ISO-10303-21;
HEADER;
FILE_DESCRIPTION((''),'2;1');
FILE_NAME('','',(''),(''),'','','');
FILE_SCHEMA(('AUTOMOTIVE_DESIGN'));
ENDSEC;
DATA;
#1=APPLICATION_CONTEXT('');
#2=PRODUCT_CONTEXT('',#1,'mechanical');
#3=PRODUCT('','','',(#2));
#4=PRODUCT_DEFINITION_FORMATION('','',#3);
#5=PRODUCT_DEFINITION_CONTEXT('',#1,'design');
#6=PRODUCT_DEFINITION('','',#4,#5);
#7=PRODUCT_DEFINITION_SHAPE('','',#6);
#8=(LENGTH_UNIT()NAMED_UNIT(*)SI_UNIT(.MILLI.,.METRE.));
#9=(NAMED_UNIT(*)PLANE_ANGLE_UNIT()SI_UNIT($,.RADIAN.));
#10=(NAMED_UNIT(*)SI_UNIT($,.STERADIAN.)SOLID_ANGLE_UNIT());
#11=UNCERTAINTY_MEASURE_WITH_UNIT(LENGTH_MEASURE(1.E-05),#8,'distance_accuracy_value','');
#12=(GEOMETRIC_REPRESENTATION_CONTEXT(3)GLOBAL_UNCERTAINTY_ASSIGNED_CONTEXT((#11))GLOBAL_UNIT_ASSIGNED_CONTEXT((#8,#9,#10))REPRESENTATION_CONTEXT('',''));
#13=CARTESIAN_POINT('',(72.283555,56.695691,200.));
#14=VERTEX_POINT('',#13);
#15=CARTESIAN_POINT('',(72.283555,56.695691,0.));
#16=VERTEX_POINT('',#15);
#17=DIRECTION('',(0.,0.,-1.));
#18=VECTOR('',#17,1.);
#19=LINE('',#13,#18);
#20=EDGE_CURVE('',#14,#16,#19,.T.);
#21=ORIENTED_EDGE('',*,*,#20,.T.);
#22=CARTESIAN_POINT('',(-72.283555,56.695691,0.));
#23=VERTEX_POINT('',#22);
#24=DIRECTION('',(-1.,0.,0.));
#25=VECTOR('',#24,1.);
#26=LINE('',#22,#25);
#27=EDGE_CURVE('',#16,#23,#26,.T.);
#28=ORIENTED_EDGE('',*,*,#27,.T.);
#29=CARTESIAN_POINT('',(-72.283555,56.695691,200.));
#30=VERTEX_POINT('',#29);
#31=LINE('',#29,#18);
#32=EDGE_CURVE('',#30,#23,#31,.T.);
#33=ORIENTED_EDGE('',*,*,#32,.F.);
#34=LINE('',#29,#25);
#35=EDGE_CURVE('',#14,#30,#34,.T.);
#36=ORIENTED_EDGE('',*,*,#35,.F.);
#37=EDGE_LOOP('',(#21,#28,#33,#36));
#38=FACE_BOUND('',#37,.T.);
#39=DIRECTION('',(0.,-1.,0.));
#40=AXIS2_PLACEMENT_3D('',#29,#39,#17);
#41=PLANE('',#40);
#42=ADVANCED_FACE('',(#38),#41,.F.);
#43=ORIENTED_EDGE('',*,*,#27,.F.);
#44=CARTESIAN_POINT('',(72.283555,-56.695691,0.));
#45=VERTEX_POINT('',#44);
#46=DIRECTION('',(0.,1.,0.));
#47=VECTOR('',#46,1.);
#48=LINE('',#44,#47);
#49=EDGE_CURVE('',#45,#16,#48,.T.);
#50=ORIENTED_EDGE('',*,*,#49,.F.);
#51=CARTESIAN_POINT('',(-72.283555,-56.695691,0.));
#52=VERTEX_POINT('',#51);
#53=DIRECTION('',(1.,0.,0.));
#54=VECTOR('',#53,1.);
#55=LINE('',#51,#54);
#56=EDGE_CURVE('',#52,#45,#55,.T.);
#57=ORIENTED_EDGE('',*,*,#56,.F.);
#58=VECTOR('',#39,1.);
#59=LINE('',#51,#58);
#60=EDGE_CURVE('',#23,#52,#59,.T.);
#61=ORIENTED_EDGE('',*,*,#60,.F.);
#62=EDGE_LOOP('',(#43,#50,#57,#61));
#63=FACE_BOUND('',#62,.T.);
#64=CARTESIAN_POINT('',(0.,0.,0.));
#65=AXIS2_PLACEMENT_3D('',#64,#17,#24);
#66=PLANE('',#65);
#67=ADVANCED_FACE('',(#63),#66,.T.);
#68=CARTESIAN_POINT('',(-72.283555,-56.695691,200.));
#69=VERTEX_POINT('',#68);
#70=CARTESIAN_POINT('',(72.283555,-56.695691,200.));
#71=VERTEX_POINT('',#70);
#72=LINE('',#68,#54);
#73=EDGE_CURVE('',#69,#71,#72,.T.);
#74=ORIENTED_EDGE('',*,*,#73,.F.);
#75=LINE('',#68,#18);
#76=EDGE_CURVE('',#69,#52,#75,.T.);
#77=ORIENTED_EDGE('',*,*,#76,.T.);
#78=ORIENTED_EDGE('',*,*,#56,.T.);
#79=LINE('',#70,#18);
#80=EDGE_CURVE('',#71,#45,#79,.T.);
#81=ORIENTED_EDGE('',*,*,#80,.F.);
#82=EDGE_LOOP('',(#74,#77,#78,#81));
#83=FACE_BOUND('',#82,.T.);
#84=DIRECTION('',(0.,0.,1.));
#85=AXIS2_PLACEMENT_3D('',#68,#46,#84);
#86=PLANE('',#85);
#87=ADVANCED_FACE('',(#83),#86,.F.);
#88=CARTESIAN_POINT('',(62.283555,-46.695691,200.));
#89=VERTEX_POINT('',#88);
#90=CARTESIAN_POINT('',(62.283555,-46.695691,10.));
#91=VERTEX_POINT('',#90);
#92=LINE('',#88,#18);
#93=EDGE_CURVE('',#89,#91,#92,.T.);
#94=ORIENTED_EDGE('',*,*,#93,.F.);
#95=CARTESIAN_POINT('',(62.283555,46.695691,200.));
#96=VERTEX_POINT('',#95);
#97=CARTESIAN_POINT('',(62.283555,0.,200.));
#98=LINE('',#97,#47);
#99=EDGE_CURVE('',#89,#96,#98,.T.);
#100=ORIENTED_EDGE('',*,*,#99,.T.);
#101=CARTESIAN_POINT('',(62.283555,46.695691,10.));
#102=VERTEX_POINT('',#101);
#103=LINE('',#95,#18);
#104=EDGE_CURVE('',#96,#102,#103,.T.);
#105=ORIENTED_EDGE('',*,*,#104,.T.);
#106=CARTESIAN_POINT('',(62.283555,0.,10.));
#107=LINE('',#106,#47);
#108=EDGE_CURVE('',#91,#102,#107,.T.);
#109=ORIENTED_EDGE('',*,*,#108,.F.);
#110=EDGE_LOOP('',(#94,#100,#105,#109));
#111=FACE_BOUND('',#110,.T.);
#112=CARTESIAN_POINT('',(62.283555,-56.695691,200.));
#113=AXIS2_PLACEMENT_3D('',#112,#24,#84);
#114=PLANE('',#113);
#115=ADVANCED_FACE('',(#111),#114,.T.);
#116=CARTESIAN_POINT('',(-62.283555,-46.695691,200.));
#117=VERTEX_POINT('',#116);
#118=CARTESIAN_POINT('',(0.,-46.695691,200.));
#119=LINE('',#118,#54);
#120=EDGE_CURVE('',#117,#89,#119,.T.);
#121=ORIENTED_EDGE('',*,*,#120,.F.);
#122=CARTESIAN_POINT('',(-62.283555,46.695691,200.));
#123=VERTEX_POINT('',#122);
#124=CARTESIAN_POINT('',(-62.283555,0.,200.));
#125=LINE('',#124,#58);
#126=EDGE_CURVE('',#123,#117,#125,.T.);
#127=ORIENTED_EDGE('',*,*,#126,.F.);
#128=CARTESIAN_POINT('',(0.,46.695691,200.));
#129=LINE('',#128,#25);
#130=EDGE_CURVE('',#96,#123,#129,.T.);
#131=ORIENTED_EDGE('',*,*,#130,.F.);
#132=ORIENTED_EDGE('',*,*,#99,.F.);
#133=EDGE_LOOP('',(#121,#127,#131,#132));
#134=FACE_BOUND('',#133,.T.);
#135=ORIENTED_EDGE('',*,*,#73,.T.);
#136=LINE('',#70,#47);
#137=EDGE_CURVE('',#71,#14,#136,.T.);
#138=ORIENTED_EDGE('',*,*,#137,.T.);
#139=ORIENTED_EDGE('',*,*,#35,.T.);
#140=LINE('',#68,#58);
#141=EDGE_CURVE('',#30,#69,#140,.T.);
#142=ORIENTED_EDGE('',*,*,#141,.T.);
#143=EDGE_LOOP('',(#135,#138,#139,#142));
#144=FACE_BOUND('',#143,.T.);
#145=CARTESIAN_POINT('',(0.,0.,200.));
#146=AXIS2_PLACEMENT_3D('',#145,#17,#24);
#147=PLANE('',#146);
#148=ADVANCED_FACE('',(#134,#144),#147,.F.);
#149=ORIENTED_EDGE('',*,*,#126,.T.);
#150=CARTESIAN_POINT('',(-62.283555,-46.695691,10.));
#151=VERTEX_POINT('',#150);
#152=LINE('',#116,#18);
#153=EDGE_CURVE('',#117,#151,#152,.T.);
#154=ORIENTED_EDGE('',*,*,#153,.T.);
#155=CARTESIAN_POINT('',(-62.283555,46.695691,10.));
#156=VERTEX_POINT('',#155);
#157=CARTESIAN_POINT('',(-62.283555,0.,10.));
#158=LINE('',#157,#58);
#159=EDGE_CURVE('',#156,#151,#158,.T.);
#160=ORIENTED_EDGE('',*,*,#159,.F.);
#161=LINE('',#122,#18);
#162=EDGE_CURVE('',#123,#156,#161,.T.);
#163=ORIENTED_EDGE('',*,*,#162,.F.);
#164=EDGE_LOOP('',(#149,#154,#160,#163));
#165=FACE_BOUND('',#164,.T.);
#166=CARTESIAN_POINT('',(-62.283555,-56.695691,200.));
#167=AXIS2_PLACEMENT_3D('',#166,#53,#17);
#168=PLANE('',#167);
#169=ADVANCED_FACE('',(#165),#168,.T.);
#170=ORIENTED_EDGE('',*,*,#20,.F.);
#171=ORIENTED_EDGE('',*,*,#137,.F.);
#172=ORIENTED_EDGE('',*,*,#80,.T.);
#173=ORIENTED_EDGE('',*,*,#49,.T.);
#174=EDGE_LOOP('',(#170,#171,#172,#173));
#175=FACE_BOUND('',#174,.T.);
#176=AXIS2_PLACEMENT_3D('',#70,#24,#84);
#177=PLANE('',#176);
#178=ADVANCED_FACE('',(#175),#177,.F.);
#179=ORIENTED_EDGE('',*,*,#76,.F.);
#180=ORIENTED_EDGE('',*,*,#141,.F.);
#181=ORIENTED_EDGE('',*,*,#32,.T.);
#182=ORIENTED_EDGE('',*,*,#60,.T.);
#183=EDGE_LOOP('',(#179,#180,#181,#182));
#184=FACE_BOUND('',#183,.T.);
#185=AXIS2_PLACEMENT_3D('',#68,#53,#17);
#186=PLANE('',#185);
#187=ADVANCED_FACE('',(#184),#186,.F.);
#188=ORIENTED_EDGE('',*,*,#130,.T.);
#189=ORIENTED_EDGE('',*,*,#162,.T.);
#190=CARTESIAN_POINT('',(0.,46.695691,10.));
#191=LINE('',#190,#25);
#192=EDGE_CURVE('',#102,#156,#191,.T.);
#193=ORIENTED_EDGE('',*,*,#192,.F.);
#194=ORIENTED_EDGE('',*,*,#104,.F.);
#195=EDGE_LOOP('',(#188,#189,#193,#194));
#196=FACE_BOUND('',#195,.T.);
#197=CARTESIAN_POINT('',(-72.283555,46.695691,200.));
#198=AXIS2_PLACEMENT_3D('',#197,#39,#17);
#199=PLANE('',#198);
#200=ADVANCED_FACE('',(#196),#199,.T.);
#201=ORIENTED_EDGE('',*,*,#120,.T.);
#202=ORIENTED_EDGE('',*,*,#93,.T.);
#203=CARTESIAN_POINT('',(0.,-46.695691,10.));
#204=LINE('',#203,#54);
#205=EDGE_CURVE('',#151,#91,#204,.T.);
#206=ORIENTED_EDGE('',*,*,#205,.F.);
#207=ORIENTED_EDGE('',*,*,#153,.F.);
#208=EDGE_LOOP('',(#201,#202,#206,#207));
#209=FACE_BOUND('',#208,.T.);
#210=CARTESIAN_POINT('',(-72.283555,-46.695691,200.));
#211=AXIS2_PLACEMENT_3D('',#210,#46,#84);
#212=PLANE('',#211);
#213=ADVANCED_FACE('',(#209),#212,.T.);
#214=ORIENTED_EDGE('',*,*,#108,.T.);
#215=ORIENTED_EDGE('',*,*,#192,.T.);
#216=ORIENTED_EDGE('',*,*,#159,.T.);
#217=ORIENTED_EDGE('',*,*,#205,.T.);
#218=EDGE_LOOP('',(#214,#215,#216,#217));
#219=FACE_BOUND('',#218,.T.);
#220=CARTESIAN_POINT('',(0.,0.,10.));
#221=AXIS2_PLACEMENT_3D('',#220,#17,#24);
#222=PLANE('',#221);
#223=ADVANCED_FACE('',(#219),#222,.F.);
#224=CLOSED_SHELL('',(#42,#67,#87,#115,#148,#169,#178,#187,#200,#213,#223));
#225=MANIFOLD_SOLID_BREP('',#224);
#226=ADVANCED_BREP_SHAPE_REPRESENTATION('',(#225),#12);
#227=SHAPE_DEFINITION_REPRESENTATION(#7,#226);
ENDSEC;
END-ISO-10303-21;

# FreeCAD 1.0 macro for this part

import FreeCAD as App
import Part
import Sketcher


def faces_at(feature, points):
    """Names of the faces that lie closest to the given points."""
    faces = feature.Shape.Faces
    near = lambda p: min(range(len(faces)), key=lambda i: faces[i].distToShape(Part.Vertex(*p))[0])
    return sorted({f"Face{near(p) + 1}" for p in points})

doc = App.newDocument("Part")
body = doc.addObject("PartDesign::Body", "Body")

sketch1 = doc.addObject("Sketcher::SketchObject", "Sketch")
body.addObject(sketch1)
sketch1.AttachmentSupport = (doc.XY_Plane, [""])
sketch1.MapMode = "FlatFace"
sketch1.addGeometry([
    Part.LineSegment(App.Vector(-72, 57, 0), App.Vector(-72, -57, 0)),
    Part.LineSegment(App.Vector(-72, -57, 0), App.Vector(72, -57, 0)),
    Part.LineSegment(App.Vector(72, -57, 0), App.Vector(72, 57, 0)),
    Part.LineSegment(App.Vector(72, 57, 0), App.Vector(-72, 57, 0)),
], False)
sketch1.addConstraint([
    Sketcher.Constraint("Coincident", 0, 2, 1, 1),
    Sketcher.Constraint("Coincident", 1, 2, 2, 1),
    Sketcher.Constraint("Coincident", 2, 2, 3, 1),
    Sketcher.Constraint("Coincident", 3, 2, 0, 1),
    Sketcher.Constraint("Vertical", 0),
    Sketcher.Constraint("Horizontal", 1),
    Sketcher.Constraint("Vertical", 2),
    Sketcher.Constraint("Horizontal", 3),
    Sketcher.Constraint("Symmetric", 0, 2, 2, 2, -1, 1),
    Sketcher.Constraint("DistanceX", 1, 1, 1, 2, 144.56711),
    Sketcher.Constraint("DistanceY", 0, 2, 0, 1, 113.391382),
])
pad1 = doc.addObject("PartDesign::Pad", "Pad")
body.addObject(pad1)
pad1.Profile = sketch1
pad1.Length = 200
doc.recompute()

thickness = doc.addObject("PartDesign::Thickness", "Thickness")
body.addObject(thickness)
thickness.Base = (pad1, faces_at(pad1, [(0, 0, 200)]))
thickness.Value = 10
thickness.Reversed = True
thickness.Join = "Intersection"

doc.recompute()
